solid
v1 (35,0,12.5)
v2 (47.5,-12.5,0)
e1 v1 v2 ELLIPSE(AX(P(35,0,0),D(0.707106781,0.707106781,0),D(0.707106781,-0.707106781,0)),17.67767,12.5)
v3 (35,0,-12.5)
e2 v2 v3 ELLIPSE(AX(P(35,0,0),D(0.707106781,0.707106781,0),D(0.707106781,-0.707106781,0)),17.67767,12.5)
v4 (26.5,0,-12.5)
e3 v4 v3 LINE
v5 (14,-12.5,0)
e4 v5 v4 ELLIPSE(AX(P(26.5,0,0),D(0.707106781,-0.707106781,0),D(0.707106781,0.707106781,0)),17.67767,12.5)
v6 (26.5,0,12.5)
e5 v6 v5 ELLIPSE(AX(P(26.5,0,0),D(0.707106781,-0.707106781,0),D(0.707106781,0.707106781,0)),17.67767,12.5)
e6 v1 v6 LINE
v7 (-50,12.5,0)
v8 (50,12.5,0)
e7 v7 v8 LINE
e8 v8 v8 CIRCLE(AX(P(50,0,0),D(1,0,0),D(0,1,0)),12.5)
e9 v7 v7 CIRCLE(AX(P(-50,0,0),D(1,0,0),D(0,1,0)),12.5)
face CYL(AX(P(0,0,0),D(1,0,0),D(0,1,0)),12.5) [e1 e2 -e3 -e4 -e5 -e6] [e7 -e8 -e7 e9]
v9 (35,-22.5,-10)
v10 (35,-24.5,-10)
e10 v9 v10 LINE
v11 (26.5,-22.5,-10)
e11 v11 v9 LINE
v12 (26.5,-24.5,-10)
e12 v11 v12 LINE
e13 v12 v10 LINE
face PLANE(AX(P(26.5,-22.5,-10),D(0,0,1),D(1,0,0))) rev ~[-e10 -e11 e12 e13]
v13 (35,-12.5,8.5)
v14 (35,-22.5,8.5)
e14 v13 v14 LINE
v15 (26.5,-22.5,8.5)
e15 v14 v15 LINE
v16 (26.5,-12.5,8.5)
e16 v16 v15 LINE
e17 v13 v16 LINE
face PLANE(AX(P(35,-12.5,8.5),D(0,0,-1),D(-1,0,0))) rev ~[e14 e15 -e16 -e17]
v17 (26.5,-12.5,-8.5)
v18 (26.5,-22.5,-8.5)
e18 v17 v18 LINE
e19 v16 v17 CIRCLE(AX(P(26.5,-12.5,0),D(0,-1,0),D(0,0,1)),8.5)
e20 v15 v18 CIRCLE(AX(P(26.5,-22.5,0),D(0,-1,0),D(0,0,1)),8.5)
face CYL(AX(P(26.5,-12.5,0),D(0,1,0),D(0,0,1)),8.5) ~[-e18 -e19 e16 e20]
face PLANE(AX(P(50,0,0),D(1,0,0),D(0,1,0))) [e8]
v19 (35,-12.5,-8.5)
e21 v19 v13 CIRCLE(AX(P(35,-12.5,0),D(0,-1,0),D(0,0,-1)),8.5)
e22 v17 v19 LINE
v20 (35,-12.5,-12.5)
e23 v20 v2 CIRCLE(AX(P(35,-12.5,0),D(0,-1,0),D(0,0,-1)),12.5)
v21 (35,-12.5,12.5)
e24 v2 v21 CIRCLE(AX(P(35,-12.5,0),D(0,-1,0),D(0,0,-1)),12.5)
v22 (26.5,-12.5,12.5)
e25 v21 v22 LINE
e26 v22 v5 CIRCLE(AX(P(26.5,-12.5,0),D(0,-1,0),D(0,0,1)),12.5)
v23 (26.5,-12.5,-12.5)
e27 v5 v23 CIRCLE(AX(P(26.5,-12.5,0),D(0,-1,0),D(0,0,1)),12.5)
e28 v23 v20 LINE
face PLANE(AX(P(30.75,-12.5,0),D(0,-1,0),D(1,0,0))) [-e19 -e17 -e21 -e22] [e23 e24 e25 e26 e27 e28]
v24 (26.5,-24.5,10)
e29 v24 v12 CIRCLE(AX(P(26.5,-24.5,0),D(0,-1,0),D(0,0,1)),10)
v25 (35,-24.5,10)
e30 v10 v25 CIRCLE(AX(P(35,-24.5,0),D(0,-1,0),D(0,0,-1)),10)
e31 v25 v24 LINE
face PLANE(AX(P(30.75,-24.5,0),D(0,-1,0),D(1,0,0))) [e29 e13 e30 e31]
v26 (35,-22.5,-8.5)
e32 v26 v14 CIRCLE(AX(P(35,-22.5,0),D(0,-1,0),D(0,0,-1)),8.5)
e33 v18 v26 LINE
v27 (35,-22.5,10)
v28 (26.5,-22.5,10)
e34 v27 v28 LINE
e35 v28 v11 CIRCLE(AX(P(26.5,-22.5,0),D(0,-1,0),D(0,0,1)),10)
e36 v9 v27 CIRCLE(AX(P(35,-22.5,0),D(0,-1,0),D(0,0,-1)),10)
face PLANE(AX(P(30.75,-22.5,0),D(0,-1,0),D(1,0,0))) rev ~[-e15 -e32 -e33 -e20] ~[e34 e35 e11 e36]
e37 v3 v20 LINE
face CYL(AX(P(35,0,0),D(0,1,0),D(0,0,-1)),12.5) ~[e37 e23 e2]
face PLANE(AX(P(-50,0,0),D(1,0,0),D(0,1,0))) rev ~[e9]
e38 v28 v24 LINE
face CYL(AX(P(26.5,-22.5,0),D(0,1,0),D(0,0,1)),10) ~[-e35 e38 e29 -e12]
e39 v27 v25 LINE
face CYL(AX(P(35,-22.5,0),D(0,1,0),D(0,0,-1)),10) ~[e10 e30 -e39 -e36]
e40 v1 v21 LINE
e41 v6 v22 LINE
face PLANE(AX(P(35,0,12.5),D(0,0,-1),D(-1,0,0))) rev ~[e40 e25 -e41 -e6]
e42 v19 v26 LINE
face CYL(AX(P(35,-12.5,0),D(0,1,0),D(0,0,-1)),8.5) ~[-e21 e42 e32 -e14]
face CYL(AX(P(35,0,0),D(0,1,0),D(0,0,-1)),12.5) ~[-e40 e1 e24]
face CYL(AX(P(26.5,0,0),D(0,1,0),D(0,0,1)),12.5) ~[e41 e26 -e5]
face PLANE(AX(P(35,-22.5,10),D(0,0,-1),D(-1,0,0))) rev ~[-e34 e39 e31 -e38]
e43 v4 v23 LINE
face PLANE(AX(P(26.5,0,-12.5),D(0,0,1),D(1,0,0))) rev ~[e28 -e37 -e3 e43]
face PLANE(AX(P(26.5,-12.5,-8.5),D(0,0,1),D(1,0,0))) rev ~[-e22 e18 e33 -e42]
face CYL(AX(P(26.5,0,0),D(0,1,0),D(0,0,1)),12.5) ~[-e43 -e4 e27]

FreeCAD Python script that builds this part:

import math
import FreeCAD as App
import Part
import Sketcher

V = App.Vector

doc = App.newDocument("Part")
body = doc.addObject("PartDesign::Body", "Body")

sketch1 = doc.addObject("Sketcher::SketchObject", "Sketch")
body.addObject(sketch1)
sketch1.AttachmentSupport = (doc.YZ_Plane, [""])
sketch1.MapMode = "FlatFace"
sketch1.addGeometry(Part.Circle(V(0, 0, 0), V(0, 0, 1), 12), False)
sketch1.addConstraint([
    Sketcher.Constraint("Coincident", 0, 3, -1, 1),
    Sketcher.Constraint("Diameter", 0, 25.0),
])
pad1 = doc.addObject("PartDesign::Pad", "Pad")
body.addObject(pad1)
pad1.Profile = sketch1
pad1.Length = 100
pad1.Midplane = True

sketch2 = doc.addObject("Sketcher::SketchObject", "Sketch001")
body.addObject(sketch2)
sketch2.AttachmentSupport = (doc.XZ_Plane, [""])
sketch2.MapMode = "FlatFace"
sketch2.addGeometry([
    Part.LineSegment(V(35, 12, 0), V(26, 12, 0)),
    Part.ArcOfCircle(Part.Circle(V(26, 0, 0), V(0, 0, 1), 12), math.radians(90), math.radians(270)),
    Part.LineSegment(V(26, -12, 0), V(35, -12, 0)),
    Part.ArcOfCircle(Part.Circle(V(35, 0, 0), V(0, 0, 1), 12), math.radians(-90), math.radians(90)),
], False)
sketch2.addConstraint([
    Sketcher.Constraint("Tangent", 0, 2, 1, 1),
    Sketcher.Constraint("Tangent", 1, 2, 2, 1),
    Sketcher.Constraint("Tangent", 2, 2, 3, 1),
    Sketcher.Constraint("Tangent", 3, 2, 0, 1),
    Sketcher.Constraint("Horizontal", 0),
    Sketcher.Constraint("Horizontal", 2),
    Sketcher.Constraint("PointOnObject", 1, 3, -1),
    Sketcher.Constraint("Radius", 1, 12.5),
    Sketcher.Constraint("DistanceX", 0, 2, 0, 1, 8.5),
    Sketcher.Constraint("DistanceX", -1, 1, 3, 3, 35.0),
])
pad2 = doc.addObject("PartDesign::Pad", "Pad001")
body.addObject(pad2)
pad2.Profile = sketch2
pad2.Length = 12.5

sketch3 = doc.addObject("Sketcher::SketchObject", "Sketch002")
body.addObject(sketch3)
sketch3.AttachmentSupport = (doc.XZ_Plane, [""])
sketch3.MapMode = "FlatFace"
sketch3.AttachmentOffset = App.Placement(V(0, 0, 12.5), App.Rotation())
sketch3.addGeometry([
    Part.LineSegment(V(35, 8, 0), V(26, 8, 0)),
    Part.ArcOfCircle(Part.Circle(V(26, 0, 0), V(0, 0, 1), 8), math.radians(90), math.radians(270)),
    Part.LineSegment(V(26, -8, 0), V(35, -8, 0)),
    Part.ArcOfCircle(Part.Circle(V(35, 0, 0), V(0, 0, 1), 8), math.radians(-90), math.radians(90)),
], False)
sketch3.addConstraint([
    Sketcher.Constraint("Tangent", 0, 2, 1, 1),
    Sketcher.Constraint("Tangent", 1, 2, 2, 1),
    Sketcher.Constraint("Tangent", 2, 2, 3, 1),
    Sketcher.Constraint("Tangent", 3, 2, 0, 1),
    Sketcher.Constraint("Horizontal", 0),
    Sketcher.Constraint("Horizontal", 2),
    Sketcher.Constraint("PointOnObject", 1, 3, -1),
    Sketcher.Constraint("Radius", 1, 8.5),
    Sketcher.Constraint("DistanceX", 0, 2, 0, 1, 8.5),
    Sketcher.Constraint("DistanceX", -1, 1, 3, 3, 35.0),
])
pad3 = doc.addObject("PartDesign::Pad", "Pad002")
body.addObject(pad3)
pad3.Profile = sketch3
pad3.Length = 10

sketch4 = doc.addObject("Sketcher::SketchObject", "Sketch003")
body.addObject(sketch4)
sketch4.AttachmentSupport = (doc.XZ_Plane, [""])
sketch4.MapMode = "FlatFace"
sketch4.AttachmentOffset = App.Placement(V(0, 0, 22.5), App.Rotation())
sketch4.addGeometry([
    Part.LineSegment(V(35, 10, 0), V(26, 10, 0)),
    Part.ArcOfCircle(Part.Circle(V(26, 0, 0), V(0, 0, 1), 10), math.radians(90), math.radians(270)),
    Part.LineSegment(V(26, -10, 0), V(35, -10, 0)),
    Part.ArcOfCircle(Part.Circle(V(35, 0, 0), V(0, 0, 1), 10), math.radians(-90), math.radians(90)),
], False)
sketch4.addConstraint([
    Sketcher.Constraint("Tangent", 0, 2, 1, 1),
    Sketcher.Constraint("Tangent", 1, 2, 2, 1),
    Sketcher.Constraint("Tangent", 2, 2, 3, 1),
    Sketcher.Constraint("Tangent", 3, 2, 0, 1),
    Sketcher.Constraint("Horizontal", 0),
    Sketcher.Constraint("Horizontal", 2),
    Sketcher.Constraint("PointOnObject", 1, 3, -1),
    Sketcher.Constraint("Radius", 1, 10.0),
    Sketcher.Constraint("DistanceX", 0, 2, 0, 1, 8.5),
    Sketcher.Constraint("DistanceX", -1, 1, 3, 3, 35.0),
])
pad4 = doc.addObject("PartDesign::Pad", "Pad003")
body.addObject(pad4)
pad4.Profile = sketch4
pad4.Length = 2

doc.recompute()
